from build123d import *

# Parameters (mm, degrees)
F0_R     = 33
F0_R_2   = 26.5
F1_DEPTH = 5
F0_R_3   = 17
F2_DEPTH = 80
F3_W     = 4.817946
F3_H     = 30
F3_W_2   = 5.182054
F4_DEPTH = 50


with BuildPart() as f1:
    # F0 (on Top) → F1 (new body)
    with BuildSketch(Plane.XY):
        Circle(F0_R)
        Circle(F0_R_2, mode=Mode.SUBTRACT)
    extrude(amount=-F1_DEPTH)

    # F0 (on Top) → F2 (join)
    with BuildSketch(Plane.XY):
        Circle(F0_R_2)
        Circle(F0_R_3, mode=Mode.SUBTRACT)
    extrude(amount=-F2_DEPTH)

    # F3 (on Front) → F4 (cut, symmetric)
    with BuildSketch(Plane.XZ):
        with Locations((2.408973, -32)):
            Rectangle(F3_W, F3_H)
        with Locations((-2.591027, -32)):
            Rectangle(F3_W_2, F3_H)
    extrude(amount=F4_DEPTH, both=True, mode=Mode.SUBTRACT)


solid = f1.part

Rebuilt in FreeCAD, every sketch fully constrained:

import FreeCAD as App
import Part
import Sketcher
Q = App.Units.Quantity

doc = App.newDocument("Part")
params = doc.addObject("Spreadsheet::Sheet", "Params")
for row, (alias, value) in enumerate([
    ("sketch1_diameter", "66 mm"),
    ("sketch1_diameter2", "53 mm"),
    ("pad1_length", "5 mm"),
    ("sketch2_diameter", "53 mm"),
    ("sketch2_diameter2", "34 mm"),
    ("pad2_length", "80 mm"),
    ("sketch3_width", "10 mm"),
    ("sketch3_height", "30 mm"),
    ("pocket1_length", "100 mm"),
], start=1):
    params.set(f"A{row}", alias)
    params.set(f"B{row}", "=" + value)
    params.setAlias(f"B{row}", alias)

body = doc.addObject("PartDesign::Body", "Body")

# Sketch on XY plane
sketch1 = body.newObject("Sketcher::SketchObject", "Sketch")
sketch1.AttachmentSupport = (doc.getObject("XY_Plane"), [""])
sketch1.MapMode = "FlatFace"
sketch1.addGeometry(Part.Circle(App.Vector(0, 0, 0), App.Vector(0, 0, 1), 33), False)
sketch1.addGeometry(Part.Circle(App.Vector(0, 0, 0), App.Vector(0, 0, 1), 26), False)
sketch1.addConstraint(Sketcher.Constraint("Coincident", 0, 3, -1, 1))
sketch1.addConstraint(Sketcher.Constraint("Coincident", 1, 3, -1, 1))
sketch1.addConstraint(Sketcher.Constraint("Diameter", 0, Q("66 mm")))
sketch1.addConstraint(Sketcher.Constraint("Diameter", 1, Q("53 mm")))
sketch1.setExpression("Constraints[2]", "Params.sketch1_diameter")
sketch1.setExpression("Constraints[3]", "Params.sketch1_diameter2")
pad1 = body.newObject("PartDesign::Pad", "Pad")
pad1.Profile = sketch1
pad1.setExpression("Length", "Params.pad1_length")
pad1.Reversed = True

# Sketch on XY plane
sketch2 = body.newObject("Sketcher::SketchObject", "Sketch001")
sketch2.AttachmentSupport = (doc.getObject("XY_Plane"), [""])
sketch2.MapMode = "FlatFace"
sketch2.addGeometry(Part.Circle(App.Vector(0, 0, 0), App.Vector(0, 0, 1), 26), False)
sketch2.addGeometry(Part.Circle(App.Vector(0, 0, 0), App.Vector(0, 0, 1), 17), False)
sketch2.addConstraint(Sketcher.Constraint("Coincident", 0, 3, -1, 1))
sketch2.addConstraint(Sketcher.Constraint("Coincident", 1, 3, -1, 1))
sketch2.addConstraint(Sketcher.Constraint("Diameter", 0, Q("53 mm")))
sketch2.addConstraint(Sketcher.Constraint("Diameter", 1, Q("34 mm")))
sketch2.setExpression("Constraints[2]", "Params.sketch2_diameter")
sketch2.setExpression("Constraints[3]", "Params.sketch2_diameter2")
pad2 = body.newObject("PartDesign::Pad", "Pad001")
pad2.Profile = sketch2
pad2.setExpression("Length", "Params.pad2_length")
pad2.Reversed = True

# Sketch on XZ plane
sketch3 = body.newObject("Sketcher::SketchObject", "Sketch002")
sketch3.AttachmentSupport = (doc.getObject("XZ_Plane"), [""])
sketch3.MapMode = "FlatFace"
sketch3.addGeometry(Part.LineSegment(App.Vector(5, -47, 0), App.Vector(5, -17, 0)), False)
sketch3.addGeometry(Part.LineSegment(App.Vector(5, -17, 0), App.Vector(-5, -17, 0)), False)
sketch3.addGeometry(Part.LineSegment(App.Vector(-5, -17, 0), App.Vector(-5, -47, 0)), False)
sketch3.addGeometry(Part.LineSegment(App.Vector(-5, -47, 0), App.Vector(5, -47, 0)), False)
sketch3.addConstraint(Sketcher.Constraint("Coincident", 0, 2, 1, 1))
sketch3.addConstraint(Sketcher.Constraint("Coincident", 1, 2, 2, 1))
sketch3.addConstraint(Sketcher.Constraint("Coincident", 2, 2, 3, 1))
sketch3.addConstraint(Sketcher.Constraint("Coincident", 3, 2, 0, 1))
sketch3.addConstraint(Sketcher.Constraint("Vertical", 0))
sketch3.addConstraint(Sketcher.Constraint("Horizontal", 1))
sketch3.addConstraint(Sketcher.Constraint("Vertical", 2))
sketch3.addConstraint(Sketcher.Constraint("Horizontal", 3))
sketch3.addConstraint(Sketcher.Constraint("DistanceX", 1, 2, 1, 1, Q("10 mm")))
sketch3.addConstraint(Sketcher.Constraint("DistanceY", 0, 1, 0, 2, Q("30 mm")))
sketch3.addConstraint(Sketcher.Constraint("DistanceY", 0, 2, -1, 1, Q("17 mm")))
sketch3.addConstraint(Sketcher.Constraint("DistanceX", -1, 1, 0, 2, Q("4.817946 mm")))
sketch3.setExpression("Constraints[8]", "Params.sketch3_width")
sketch3.setExpression("Constraints[9]", "Params.sketch3_height")
pocket1 = body.newObject("PartDesign::Pocket", "Pocket")
pocket1.Profile = sketch3
pocket1.setExpression("Length", "Params.pocket1_length")
pocket1.Midplane = True

doc.recompute()
